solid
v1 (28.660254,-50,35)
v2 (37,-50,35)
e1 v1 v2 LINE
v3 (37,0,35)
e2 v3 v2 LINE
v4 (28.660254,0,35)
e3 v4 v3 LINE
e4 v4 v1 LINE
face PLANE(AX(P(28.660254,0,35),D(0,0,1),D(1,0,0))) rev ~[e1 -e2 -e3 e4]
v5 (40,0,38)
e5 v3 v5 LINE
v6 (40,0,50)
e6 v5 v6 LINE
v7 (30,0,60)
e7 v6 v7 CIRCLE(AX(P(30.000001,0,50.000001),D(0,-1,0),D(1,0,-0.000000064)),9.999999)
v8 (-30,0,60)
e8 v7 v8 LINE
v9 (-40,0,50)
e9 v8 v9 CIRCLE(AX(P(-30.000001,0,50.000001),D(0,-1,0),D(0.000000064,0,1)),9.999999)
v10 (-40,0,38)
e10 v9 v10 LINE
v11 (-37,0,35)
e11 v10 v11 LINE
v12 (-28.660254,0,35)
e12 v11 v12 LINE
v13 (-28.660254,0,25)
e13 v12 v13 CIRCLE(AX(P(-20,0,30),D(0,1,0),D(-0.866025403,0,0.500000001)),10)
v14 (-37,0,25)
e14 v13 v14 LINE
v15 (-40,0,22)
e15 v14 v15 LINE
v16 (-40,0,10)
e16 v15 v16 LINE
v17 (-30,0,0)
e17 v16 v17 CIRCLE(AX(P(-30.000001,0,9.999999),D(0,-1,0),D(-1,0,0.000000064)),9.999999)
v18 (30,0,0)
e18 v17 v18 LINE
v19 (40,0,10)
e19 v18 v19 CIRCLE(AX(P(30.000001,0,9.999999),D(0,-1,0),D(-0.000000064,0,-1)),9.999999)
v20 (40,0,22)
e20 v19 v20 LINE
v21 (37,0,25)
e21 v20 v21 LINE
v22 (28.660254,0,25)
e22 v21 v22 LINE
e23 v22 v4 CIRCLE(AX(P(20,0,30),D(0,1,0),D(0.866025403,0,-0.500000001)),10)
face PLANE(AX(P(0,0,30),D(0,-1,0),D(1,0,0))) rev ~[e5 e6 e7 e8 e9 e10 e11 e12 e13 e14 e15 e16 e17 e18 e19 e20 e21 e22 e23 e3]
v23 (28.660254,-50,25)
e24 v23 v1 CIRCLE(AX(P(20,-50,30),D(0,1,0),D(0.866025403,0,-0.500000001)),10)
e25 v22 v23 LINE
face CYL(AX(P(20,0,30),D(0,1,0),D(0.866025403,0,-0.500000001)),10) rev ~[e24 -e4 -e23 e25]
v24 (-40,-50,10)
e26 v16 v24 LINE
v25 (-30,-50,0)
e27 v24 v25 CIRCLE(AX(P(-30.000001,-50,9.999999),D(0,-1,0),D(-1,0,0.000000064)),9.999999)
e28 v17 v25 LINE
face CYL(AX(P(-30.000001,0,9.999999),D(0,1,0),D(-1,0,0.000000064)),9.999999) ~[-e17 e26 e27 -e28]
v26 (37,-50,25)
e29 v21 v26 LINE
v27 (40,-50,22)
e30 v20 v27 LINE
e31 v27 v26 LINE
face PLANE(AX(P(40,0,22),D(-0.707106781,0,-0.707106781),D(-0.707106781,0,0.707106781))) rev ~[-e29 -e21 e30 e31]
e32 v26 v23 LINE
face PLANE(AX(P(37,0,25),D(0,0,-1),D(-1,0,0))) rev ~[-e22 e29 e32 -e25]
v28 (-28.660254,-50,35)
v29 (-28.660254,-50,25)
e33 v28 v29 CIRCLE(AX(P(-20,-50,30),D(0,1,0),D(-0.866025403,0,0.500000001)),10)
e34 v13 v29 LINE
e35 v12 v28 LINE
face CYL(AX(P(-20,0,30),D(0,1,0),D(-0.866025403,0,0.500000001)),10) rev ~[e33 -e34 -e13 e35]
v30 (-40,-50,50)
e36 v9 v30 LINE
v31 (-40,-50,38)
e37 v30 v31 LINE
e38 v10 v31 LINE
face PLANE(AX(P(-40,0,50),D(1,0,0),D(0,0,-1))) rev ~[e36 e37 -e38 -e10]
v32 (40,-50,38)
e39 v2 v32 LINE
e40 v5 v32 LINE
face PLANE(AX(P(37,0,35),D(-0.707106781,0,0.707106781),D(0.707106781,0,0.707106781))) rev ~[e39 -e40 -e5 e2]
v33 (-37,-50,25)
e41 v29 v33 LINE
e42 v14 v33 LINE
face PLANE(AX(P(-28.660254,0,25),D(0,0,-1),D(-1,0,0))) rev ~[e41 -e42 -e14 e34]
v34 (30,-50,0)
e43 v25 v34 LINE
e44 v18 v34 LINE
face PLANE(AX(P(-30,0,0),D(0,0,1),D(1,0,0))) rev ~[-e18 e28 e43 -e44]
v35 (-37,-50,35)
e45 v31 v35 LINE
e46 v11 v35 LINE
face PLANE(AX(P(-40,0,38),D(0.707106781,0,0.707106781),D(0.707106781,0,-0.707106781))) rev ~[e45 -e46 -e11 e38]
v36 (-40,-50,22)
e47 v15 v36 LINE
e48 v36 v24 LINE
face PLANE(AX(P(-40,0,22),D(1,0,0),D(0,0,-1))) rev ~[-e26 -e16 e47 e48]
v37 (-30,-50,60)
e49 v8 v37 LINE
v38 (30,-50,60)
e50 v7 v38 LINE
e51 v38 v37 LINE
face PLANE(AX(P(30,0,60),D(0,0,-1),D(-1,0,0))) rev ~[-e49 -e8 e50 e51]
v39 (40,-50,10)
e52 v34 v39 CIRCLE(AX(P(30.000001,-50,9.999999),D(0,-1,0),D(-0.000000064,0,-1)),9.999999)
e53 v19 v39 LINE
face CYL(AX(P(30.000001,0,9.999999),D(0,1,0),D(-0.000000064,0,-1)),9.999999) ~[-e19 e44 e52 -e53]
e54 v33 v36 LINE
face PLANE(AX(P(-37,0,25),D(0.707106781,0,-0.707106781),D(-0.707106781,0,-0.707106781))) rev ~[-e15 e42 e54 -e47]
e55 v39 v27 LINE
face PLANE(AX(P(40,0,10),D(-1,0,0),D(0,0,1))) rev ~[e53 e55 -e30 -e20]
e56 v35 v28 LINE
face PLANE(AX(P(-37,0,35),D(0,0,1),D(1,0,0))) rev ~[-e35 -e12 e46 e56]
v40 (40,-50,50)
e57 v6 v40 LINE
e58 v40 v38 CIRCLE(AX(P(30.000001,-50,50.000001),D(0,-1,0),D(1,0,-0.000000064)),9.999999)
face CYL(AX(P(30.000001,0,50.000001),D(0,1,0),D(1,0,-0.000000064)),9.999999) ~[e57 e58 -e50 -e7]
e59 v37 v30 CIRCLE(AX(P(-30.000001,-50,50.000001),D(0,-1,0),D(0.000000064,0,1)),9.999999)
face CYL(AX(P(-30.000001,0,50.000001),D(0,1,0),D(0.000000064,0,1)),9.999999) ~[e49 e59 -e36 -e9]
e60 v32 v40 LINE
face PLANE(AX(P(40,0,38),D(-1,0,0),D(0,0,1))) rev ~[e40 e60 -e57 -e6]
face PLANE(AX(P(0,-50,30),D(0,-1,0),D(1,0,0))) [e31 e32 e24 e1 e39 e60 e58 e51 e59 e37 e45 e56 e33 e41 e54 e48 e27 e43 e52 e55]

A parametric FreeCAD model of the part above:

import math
import FreeCAD as App
import Part
import Sketcher

doc = App.newDocument("Part")
body = doc.addObject("PartDesign::Body", "Body")

sketch1 = body.newObject("Sketcher::SketchObject", "Sketch")
sketch1.AttachmentSupport = (doc.getObject("XZ_Plane"), [""])
sketch1.MapMode = "FlatFace"
sketch1.addGeometry([
    Part.LineSegment(App.Vector(-30, 0, 0), App.Vector(30, 0, 0)),
    Part.ArcOfCircle(Part.Circle(App.Vector(30.000001, 9.999999, 0), App.Vector(0, 0, 1), 9.999999), math.radians(-90.000004), math.radians(0.000004)),
    Part.LineSegment(App.Vector(40, 10, 0), App.Vector(40, 22, 0)),
    Part.LineSegment(App.Vector(40, 22, 0), App.Vector(37, 25, 0)),
    Part.LineSegment(App.Vector(37, 25, 0), App.Vector(28.660254, 25, 0)),
    Part.ArcOfCircle(Part.Circle(App.Vector(20, 30, 0), App.Vector(0, 0, 1), 10), math.radians(30), math.radians(330)),
    Part.LineSegment(App.Vector(28.660254, 35, 0), App.Vector(37, 35, 0)),
    Part.LineSegment(App.Vector(37, 35, 0), App.Vector(40, 38, 0)),
    Part.LineSegment(App.Vector(40, 38, 0), App.Vector(40, 50, 0)),
    Part.ArcOfCircle(Part.Circle(App.Vector(30.000001, 50.000001, 0), App.Vector(0, 0, 1), 9.999999), math.radians(-0.000004), math.radians(90.000004)),
    Part.LineSegment(App.Vector(30, 60, 0), App.Vector(-30, 60, 0)),
    Part.ArcOfCircle(Part.Circle(App.Vector(-30.000001, 50.000001, 0), App.Vector(0, 0, 1), 9.999999), math.radians(89.999996), math.radians(180.000004)),
    Part.LineSegment(App.Vector(-40, 50, 0), App.Vector(-40, 38, 0)),
    Part.LineSegment(App.Vector(-40, 38, 0), App.Vector(-37, 35, 0)),
    Part.LineSegment(App.Vector(-37, 35, 0), App.Vector(-28.660254, 35, 0)),
    Part.ArcOfCircle(Part.Circle(App.Vector(-20, 30, 0), App.Vector(0, 0, 1), 10), math.radians(-150), math.radians(150)),
    Part.LineSegment(App.Vector(-28.660254, 25, 0), App.Vector(-37, 25, 0)),
    Part.LineSegment(App.Vector(-37, 25, 0), App.Vector(-40, 22, 0)),
    Part.LineSegment(App.Vector(-40, 22, 0), App.Vector(-40, 10, 0)),
    Part.ArcOfCircle(Part.Circle(App.Vector(-30.000001, 9.999999, 0), App.Vector(0, 0, 1), 9.999999), math.radians(179.999996), math.radians(270.000004)),
], False)
sketch1.addConstraint([
    Sketcher.Constraint("Tangent", 0, 2, 1, 1),
    Sketcher.Constraint("Tangent", 1, 2, 2, 1),
    Sketcher.Constraint("Coincident", 2, 2, 3, 1),
    Sketcher.Constraint("Coincident", 3, 2, 4, 1),
    Sketcher.Constraint("Coincident", 4, 2, 5, 2),
    Sketcher.Constraint("Coincident", 5, 1, 6, 1),
    Sketcher.Constraint("Coincident", 6, 2, 7, 1),
    Sketcher.Constraint("Coincident", 7, 2, 8, 1),
    Sketcher.Constraint("Tangent", 8, 2, 9, 1),
    Sketcher.Constraint("Tangent", 9, 2, 10, 1),
    Sketcher.Constraint("Tangent", 10, 2, 11, 1),
    Sketcher.Constraint("Tangent", 11, 2, 12, 1),
    Sketcher.Constraint("Coincident", 12, 2, 13, 1),
    Sketcher.Constraint("Coincident", 13, 2, 14, 1),
    Sketcher.Constraint("Coincident", 14, 2, 15, 2),
    Sketcher.Constraint("Coincident", 15, 1, 16, 1),
    Sketcher.Constraint("Coincident", 16, 2, 17, 1),
    Sketcher.Constraint("Coincident", 17, 2, 18, 1),
    Sketcher.Constraint("Tangent", 18, 2, 19, 1),
    Sketcher.Constraint("Tangent", 19, 2, 0, 1),
    Sketcher.Constraint("Horizontal", 0),
    Sketcher.Constraint("Vertical", 2),
    Sketcher.Constraint("Horizontal", 4),
    Sketcher.Constraint("Horizontal", 6),
    Sketcher.Constraint("Vertical", 8),
    Sketcher.Constraint("Horizontal", 10),
    Sketcher.Constraint("Vertical", 12),
    Sketcher.Constraint("Horizontal", 14),
    Sketcher.Constraint("Horizontal", 16),
    Sketcher.Constraint("Vertical", 18),
    Sketcher.Constraint("Equal", 1, 5),
    Sketcher.Constraint("Equal", 5, 9),
    Sketcher.Constraint("Equal", 9, 11),
    Sketcher.Constraint("Equal", 11, 15),
    Sketcher.Constraint("Equal", 15, 19),
    Sketcher.Constraint("Symmetric", 0, 2, 19, 2, -1, 1),
    Sketcher.Constraint("Symmetric", 5, 3, 15, 3, -2),
    Sketcher.Constraint("Symmetric", 7, 2, 12, 2, -2),
    Sketcher.Constraint("Symmetric", 6, 2, 13, 2, -2),
    Sketcher.Constraint("Symmetric", 3, 2, 16, 2, -2),
    Sketcher.Constraint("Perpendicular", 3, 7),
    Sketcher.Constraint("Perpendicular", 7, 13),
    Sketcher.Constraint("Perpendicular", 13, 17),
    Sketcher.Constraint("Vertical", 1, 3, 9, 3),
    Sketcher.Constraint("Vertical", 4, 2, 5, 1),
    Sketcher.Constraint("Vertical", 3, 2, 6, 2),
    Sketcher.Constraint("Equal", 2, 8),
    Sketcher.Constraint("Radius", 1, 9.999999),
    Sketcher.Constraint("DistanceX", 0, 1, 0, 2, 60.0),
    Sketcher.Constraint("DistanceY", 2, 1, 2, 2, 12.0),
    Sketcher.Constraint("DistanceX", -1, 1, 5, 3, 20.0),
    Sketcher.Constraint("DistanceY", -1, 1, 5, 3, 30.0),
    Sketcher.Constraint("DistanceX", -1, 1, 3, 2, 37.0),
])
pad1 = body.newObject("PartDesign::Pad", "Pad")
pad1.Profile = sketch1
pad1.Length = 50

doc.recompute()
